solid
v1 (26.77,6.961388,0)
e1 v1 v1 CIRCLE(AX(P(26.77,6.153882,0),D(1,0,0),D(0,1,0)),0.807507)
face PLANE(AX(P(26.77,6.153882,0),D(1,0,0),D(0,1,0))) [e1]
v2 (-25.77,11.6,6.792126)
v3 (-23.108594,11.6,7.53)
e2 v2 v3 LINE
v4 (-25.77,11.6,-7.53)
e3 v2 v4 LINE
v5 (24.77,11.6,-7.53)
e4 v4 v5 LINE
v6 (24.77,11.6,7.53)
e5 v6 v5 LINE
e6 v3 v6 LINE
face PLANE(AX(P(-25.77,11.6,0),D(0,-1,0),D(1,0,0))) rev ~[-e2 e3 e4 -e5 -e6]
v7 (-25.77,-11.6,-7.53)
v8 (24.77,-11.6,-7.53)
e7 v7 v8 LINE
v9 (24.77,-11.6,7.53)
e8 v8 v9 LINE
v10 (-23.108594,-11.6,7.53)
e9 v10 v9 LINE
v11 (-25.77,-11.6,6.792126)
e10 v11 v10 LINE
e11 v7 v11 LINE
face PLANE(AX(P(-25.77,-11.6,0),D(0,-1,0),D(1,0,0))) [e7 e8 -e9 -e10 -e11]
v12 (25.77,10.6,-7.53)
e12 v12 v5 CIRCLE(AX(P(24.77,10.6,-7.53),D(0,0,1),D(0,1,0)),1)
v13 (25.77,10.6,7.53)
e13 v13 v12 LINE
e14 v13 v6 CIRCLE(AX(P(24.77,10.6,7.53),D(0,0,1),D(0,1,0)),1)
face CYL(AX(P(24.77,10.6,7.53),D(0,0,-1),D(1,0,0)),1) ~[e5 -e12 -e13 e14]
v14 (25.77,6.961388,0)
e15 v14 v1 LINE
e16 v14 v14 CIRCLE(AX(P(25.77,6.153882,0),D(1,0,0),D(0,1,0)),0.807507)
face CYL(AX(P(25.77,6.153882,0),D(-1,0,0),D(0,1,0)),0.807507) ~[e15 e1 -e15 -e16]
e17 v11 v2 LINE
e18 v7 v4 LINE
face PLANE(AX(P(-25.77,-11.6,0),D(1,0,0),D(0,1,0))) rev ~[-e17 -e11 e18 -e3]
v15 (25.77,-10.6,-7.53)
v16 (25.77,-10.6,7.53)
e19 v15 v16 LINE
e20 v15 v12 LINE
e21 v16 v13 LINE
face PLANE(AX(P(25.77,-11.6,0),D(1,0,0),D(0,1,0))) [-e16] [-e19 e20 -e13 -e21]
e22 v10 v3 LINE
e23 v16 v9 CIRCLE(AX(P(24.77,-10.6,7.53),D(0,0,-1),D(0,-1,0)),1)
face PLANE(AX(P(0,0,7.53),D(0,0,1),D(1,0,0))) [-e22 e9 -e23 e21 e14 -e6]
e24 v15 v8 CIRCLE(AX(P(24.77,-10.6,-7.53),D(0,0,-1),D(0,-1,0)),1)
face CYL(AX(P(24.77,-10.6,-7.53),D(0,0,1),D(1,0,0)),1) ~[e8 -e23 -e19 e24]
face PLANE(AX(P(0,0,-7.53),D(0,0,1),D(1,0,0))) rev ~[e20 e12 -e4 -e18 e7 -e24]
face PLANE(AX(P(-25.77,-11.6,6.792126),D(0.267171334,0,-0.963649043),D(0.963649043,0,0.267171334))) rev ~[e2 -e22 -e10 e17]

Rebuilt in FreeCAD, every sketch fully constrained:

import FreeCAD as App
import Part
import Sketcher
Q = App.Units.Quantity


def edges_at(feature, points):
    """Names of the edges that pass closest to the given points."""
    edges = feature.Shape.Edges
    near = lambda p: min(range(len(edges)), key=lambda i: edges[i].distToShape(Part.Vertex(*p))[0])
    return sorted({f"Edge{near(p) + 1}" for p in points})

doc = App.newDocument("Part")
params = doc.addObject("Spreadsheet::Sheet", "Params")
for row, (alias, value) in enumerate([
    ("sketch1_height", "23.2 mm"),
    ("sketch1_width", "51.54 mm"),
    ("pad1_length", "15.06 mm"),
    ("fillet_radius", "1 mm"),
    ("pad2_length", "1 mm"),
], start=1):
    params.set(f"A{row}", alias)
    params.set(f"B{row}", "=" + value)
    params.setAlias(f"B{row}", alias)

body = doc.addObject("PartDesign::Body", "Body")

sketch1 = body.newObject("Sketcher::SketchObject", "Sketch")
sketch1.AttachmentSupport = (doc.getObject("XY_Plane"), [""])
sketch1.MapMode = "FlatFace"
sketch1.addGeometry([
    Part.LineSegment(App.Vector(-26, 12, 0), App.Vector(-26, -12, 0)),
    Part.LineSegment(App.Vector(-26, -12, 0), App.Vector(26, -12, 0)),
    Part.LineSegment(App.Vector(26, -12, 0), App.Vector(26, 12, 0)),
    Part.LineSegment(App.Vector(26, 12, 0), App.Vector(-26, 12, 0)),
], False)
sketch1.addConstraint([
    Sketcher.Constraint("Coincident", 0, 2, 1, 1),
    Sketcher.Constraint("Coincident", 1, 2, 2, 1),
    Sketcher.Constraint("Coincident", 2, 2, 3, 1),
    Sketcher.Constraint("Coincident", 3, 2, 0, 1),
    Sketcher.Constraint("Vertical", 0),
    Sketcher.Constraint("Horizontal", 1),
    Sketcher.Constraint("Vertical", 2),
    Sketcher.Constraint("Horizontal", 3),
    Sketcher.Constraint("Symmetric", 0, 2, 2, 2, -1, 1),
    Sketcher.Constraint("DistanceY", 0, 2, 0, 1, Q("23.2 mm")),
    Sketcher.Constraint("DistanceX", 1, 1, 1, 2, Q("51.54 mm")),
])
sketch1.setExpression("Constraints[9]", "Params.sketch1_height")
sketch1.setExpression("Constraints[10]", "Params.sketch1_width")
pad1 = body.newObject("PartDesign::Pad", "Pad")
pad1.Profile = sketch1
pad1.setExpression("Length", "Params.pad1_length")
pad1.Midplane = True
doc.recompute()

fillet = body.newObject("PartDesign::Fillet", "Fillet")
fillet.Base = (pad1, edges_at(pad1, [(25.77, 11.6, 0), (25.77, -11.6, 0)]))
fillet.setExpression("Radius", "Params.fillet_radius")

sketch2 = body.newObject("Sketcher::SketchObject", "Sketch001")
sketch2.AttachmentSupport = (doc.getObject("YZ_Plane"), [""])
sketch2.MapMode = "FlatFace"
sketch2.AttachmentOffset = App.Placement(App.Vector(0, 0, 25.77), App.Rotation())
sketch2.addGeometry(Part.Circle(App.Vector(6.2, 0, 0), App.Vector(0, 0, 1), 0.8), False)
sketch2.addConstraint([
    Sketcher.Constraint("PointOnObject", 0, 3, -1),
    Sketcher.Constraint("Diameter", 0, Q("1.615013 mm")),
    Sketcher.Constraint("DistanceX", -1, 1, 0, 3, Q("6.153882 mm")),
])
pad2 = body.newObject("PartDesign::Pad", "Pad001")
pad2.Profile = sketch2
pad2.setExpression("Length", "Params.pad2_length")

sketch3 = body.newObject("Sketcher::SketchObject", "Sketch002")
sketch3.AttachmentSupport = (doc.getObject("XZ_Plane"), [""])
sketch3.MapMode = "FlatFace"
sketch3.AttachmentOffset = App.Placement(App.Vector(0, 0, 11.6), App.Rotation())
sketch3.addGeometry([
    Part.LineSegment(App.Vector(-25.8, 7.5, 0), App.Vector(-25.8, 6.8, 0)),
    Part.LineSegment(App.Vector(-25.8, 6.8, 0), App.Vector(-23.1, 7.5, 0)),
    Part.LineSegment(App.Vector(-23.1, 7.5, 0), App.Vector(-25.8, 7.5, 0)),
], False)
sketch3.addConstraint([
    Sketcher.Constraint("Coincident", 0, 2, 1, 1),
    Sketcher.Constraint("Coincident", 1, 2, 2, 1),
    Sketcher.Constraint("Coincident", 2, 2, 0, 1),
    Sketcher.Constraint("Vertical", 0),
    Sketcher.Constraint("Horizontal", 2),
    Sketcher.Constraint("DistanceX", 0, 2, -1, 1, Q("25.77 mm")),
    Sketcher.Constraint("DistanceY", -1, 1, 1, 2, Q("7.53 mm")),
    Sketcher.Constraint("Distance", 1, Q("2.7618 mm")),
    Sketcher.Constraint("DistanceX", 2, 2, 2, 1, Q("2.661406 mm")),
])
pocket1 = body.newObject("PartDesign::Pocket", "Pocket")
pocket1.Profile = sketch3
pocket1.Type = "ThroughAll"

doc.recompute()
